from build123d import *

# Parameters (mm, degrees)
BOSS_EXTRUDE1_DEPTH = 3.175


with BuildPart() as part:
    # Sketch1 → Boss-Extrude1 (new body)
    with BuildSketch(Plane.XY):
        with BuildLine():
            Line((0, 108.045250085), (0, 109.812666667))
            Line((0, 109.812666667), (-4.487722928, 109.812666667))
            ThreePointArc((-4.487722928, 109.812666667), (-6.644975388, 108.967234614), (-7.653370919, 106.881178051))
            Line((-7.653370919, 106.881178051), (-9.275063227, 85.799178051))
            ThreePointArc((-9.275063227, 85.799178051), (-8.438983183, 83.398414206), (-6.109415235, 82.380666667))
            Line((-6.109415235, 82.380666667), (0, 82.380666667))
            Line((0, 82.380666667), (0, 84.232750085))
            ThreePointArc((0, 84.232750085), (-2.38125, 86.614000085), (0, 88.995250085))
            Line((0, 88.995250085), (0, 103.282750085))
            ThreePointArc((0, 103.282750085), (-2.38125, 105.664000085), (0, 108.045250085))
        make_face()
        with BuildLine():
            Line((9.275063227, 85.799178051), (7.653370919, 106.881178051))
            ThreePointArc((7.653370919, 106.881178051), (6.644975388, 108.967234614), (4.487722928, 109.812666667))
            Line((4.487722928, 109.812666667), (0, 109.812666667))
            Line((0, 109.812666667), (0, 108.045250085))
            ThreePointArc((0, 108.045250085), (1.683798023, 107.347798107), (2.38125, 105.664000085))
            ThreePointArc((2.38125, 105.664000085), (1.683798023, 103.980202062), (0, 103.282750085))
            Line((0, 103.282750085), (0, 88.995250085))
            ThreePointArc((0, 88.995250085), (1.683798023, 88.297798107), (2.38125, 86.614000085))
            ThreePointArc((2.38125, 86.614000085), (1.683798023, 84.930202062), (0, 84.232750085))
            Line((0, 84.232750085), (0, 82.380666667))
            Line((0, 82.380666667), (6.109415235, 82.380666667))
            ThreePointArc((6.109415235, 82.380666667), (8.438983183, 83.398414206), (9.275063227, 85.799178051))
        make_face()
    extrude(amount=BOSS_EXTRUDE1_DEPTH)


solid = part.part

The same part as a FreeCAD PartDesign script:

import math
import FreeCAD as App
import Part
import Sketcher
Q = App.Units.Quantity

doc = App.newDocument("Part")
body = doc.addObject("PartDesign::Body", "Body")

# Sketch on XY plane
sketch1 = body.newObject("Sketcher::SketchObject", "Sketch")
sketch1.AttachmentSupport = (doc.getObject("XY_Plane"), [""])
sketch1.MapMode = "FlatFace"
sketch1.addGeometry(Part.ArcOfCircle(Part.Circle(App.Vector(-4.487723, 106.637667, 0), App.Vector(0, 0, 1), 3.175), math.radians(90), math.radians(175.601295)), False)
sketch1.addGeometry(Part.LineSegment(App.Vector(-7.653371, 106.881178, 0), App.Vector(-9.275063, 85.799178, 0)), False)
sketch1.addGeometry(Part.ArcOfCircle(Part.Circle(App.Vector(-6.109415, 85.555667, 0), App.Vector(0, 0, 1), 3.175), math.radians(175.601295), math.radians(270)), False)
sketch1.addGeometry(Part.LineSegment(App.Vector(-6.109415, 82.380667, 0), App.Vector(6.109415, 82.380667, 0)), False)
sketch1.addGeometry(Part.ArcOfCircle(Part.Circle(App.Vector(6.109415, 85.555667, 0), App.Vector(0, 0, 1), 3.175), math.radians(-90), math.radians(4.398705)), False)
sketch1.addGeometry(Part.LineSegment(App.Vector(9.275063, 85.799178, 0), App.Vector(7.653371, 106.881178, 0)), False)
sketch1.addGeometry(Part.ArcOfCircle(Part.Circle(App.Vector(4.487723, 106.637667, 0), App.Vector(0, 0, 1), 3.175), math.radians(4.398705), math.radians(90)), False)
sketch1.addGeometry(Part.LineSegment(App.Vector(4.487723, 109.812667, 0), App.Vector(-4.487723, 109.812667, 0)), False)
sketch1.addGeometry(Part.ArcOfCircle(Part.Circle(App.Vector(0, 86.614, 0), App.Vector(0, 0, 1), 2.38125), math.radians(90), math.radians(270)), False)
sketch1.addGeometry(Part.ArcOfCircle(Part.Circle(App.Vector(0, 86.614, 0), App.Vector(0, 0, 1), 2.38125), math.radians(0), math.radians(90)), False)
sketch1.addGeometry(Part.ArcOfCircle(Part.Circle(App.Vector(0, 86.614, 0), App.Vector(0, 0, 1), 2.38125), math.radians(-90), math.radians(0)), False)
sketch1.addGeometry(Part.ArcOfCircle(Part.Circle(App.Vector(0, 105.664, 0), App.Vector(0, 0, 1), 2.38125), math.radians(90), math.radians(270)), False)
sketch1.addGeometry(Part.ArcOfCircle(Part.Circle(App.Vector(0, 105.664, 0), App.Vector(0, 0, 1), 2.38125), math.radians(0), math.radians(90)), False)
sketch1.addGeometry(Part.ArcOfCircle(Part.Circle(App.Vector(0, 105.664, 0), App.Vector(0, 0, 1), 2.38125), math.radians(-90), math.radians(0)), False)
sketch1.addConstraint(Sketcher.Constraint("Tangent", 0, 2, 1, 1))
sketch1.addConstraint(Sketcher.Constraint("Tangent", 1, 2, 2, 1))
sketch1.addConstraint(Sketcher.Constraint("Tangent", 2, 2, 3, 1))
sketch1.addConstraint(Sketcher.Constraint("Tangent", 3, 2, 4, 1))
sketch1.addConstraint(Sketcher.Constraint("Tangent", 4, 2, 5, 1))
sketch1.addConstraint(Sketcher.Constraint("Tangent", 5, 2, 6, 1))
sketch1.addConstraint(Sketcher.Constraint("Tangent", 6, 2, 7, 1))
sketch1.addConstraint(Sketcher.Constraint("Tangent", 7, 2, 0, 1))
sketch1.addConstraint(Sketcher.Constraint("Tangent", 8, 1, 9, 2))
sketch1.addConstraint(Sketcher.Constraint("Tangent", 9, 1, 10, 2))
sketch1.addConstraint(Sketcher.Constraint("Tangent", 10, 1, 8, 2))
sketch1.addConstraint(Sketcher.Constraint("Tangent", 11, 1, 12, 2))
sketch1.addConstraint(Sketcher.Constraint("Tangent", 12, 1, 13, 2))
sketch1.addConstraint(Sketcher.Constraint("Tangent", 13, 1, 11, 2))
sketch1.addConstraint(Sketcher.Constraint("Horizontal", 3))
sketch1.addConstraint(Sketcher.Constraint("Horizontal", 7))
sketch1.addConstraint(Sketcher.Constraint("Equal", 0, 2))
sketch1.addConstraint(Sketcher.Constraint("Equal", 2, 4))
sketch1.addConstraint(Sketcher.Constraint("Equal", 4, 6))
sketch1.addConstraint(Sketcher.Constraint("Equal", 10, 11))
sketch1.addConstraint(Sketcher.Constraint("Symmetric", 1, 2, 4, 2, -2))
sketch1.addConstraint(Sketcher.Constraint("PointOnObject", 8, 3, -2))
sketch1.addConstraint(Sketcher.Constraint("PointOnObject", 11, 3, -2))
sketch1.addConstraint(Sketcher.Constraint("PointOnObject", 8, 1, -2))
sketch1.addConstraint(Sketcher.Constraint("PointOnObject", 10, 1, -2))
sketch1.addConstraint(Sketcher.Constraint("PointOnObject", 11, 1, -2))
sketch1.addConstraint(Sketcher.Constraint("PointOnObject", 13, 1, -2))
sketch1.addConstraint(Sketcher.Constraint("Horizontal", 10, 3, 9, 1))
sketch1.addConstraint(Sketcher.Constraint("Horizontal", 13, 3, 12, 1))
sketch1.addConstraint(Sketcher.Constraint("Radius", 0, Q("0.125 in")))
sketch1.addConstraint(Sketcher.Constraint("Radius", 8, Q("0.09375 in")))
sketch1.addConstraint(Sketcher.Constraint("DistanceY", -1, 1, 8, 3, Q("3.41 in")))
sketch1.addConstraint(Sketcher.Constraint("DistanceY", -1, 1, 11, 3, Q("4.16 in")))
sketch1.addConstraint(Sketcher.Constraint("DistanceY", 2, 3, 0, 3, Q("0.83 in")))
sketch1.addConstraint(Sketcher.Constraint("DistanceX", 3, 1, 3, 2, 12.21883))
sketch1.addConstraint(Sketcher.Constraint("Distance", 1, 21.144281))
sketch1.addConstraint(Sketcher.Constraint("DistanceY", -1, 1, 0, 2, 106.881178))
pad1 = body.newObject("PartDesign::Pad", "Pad")
pad1.Profile = sketch1
pad1.Length = Q("0.125 in")

doc.recompute()
